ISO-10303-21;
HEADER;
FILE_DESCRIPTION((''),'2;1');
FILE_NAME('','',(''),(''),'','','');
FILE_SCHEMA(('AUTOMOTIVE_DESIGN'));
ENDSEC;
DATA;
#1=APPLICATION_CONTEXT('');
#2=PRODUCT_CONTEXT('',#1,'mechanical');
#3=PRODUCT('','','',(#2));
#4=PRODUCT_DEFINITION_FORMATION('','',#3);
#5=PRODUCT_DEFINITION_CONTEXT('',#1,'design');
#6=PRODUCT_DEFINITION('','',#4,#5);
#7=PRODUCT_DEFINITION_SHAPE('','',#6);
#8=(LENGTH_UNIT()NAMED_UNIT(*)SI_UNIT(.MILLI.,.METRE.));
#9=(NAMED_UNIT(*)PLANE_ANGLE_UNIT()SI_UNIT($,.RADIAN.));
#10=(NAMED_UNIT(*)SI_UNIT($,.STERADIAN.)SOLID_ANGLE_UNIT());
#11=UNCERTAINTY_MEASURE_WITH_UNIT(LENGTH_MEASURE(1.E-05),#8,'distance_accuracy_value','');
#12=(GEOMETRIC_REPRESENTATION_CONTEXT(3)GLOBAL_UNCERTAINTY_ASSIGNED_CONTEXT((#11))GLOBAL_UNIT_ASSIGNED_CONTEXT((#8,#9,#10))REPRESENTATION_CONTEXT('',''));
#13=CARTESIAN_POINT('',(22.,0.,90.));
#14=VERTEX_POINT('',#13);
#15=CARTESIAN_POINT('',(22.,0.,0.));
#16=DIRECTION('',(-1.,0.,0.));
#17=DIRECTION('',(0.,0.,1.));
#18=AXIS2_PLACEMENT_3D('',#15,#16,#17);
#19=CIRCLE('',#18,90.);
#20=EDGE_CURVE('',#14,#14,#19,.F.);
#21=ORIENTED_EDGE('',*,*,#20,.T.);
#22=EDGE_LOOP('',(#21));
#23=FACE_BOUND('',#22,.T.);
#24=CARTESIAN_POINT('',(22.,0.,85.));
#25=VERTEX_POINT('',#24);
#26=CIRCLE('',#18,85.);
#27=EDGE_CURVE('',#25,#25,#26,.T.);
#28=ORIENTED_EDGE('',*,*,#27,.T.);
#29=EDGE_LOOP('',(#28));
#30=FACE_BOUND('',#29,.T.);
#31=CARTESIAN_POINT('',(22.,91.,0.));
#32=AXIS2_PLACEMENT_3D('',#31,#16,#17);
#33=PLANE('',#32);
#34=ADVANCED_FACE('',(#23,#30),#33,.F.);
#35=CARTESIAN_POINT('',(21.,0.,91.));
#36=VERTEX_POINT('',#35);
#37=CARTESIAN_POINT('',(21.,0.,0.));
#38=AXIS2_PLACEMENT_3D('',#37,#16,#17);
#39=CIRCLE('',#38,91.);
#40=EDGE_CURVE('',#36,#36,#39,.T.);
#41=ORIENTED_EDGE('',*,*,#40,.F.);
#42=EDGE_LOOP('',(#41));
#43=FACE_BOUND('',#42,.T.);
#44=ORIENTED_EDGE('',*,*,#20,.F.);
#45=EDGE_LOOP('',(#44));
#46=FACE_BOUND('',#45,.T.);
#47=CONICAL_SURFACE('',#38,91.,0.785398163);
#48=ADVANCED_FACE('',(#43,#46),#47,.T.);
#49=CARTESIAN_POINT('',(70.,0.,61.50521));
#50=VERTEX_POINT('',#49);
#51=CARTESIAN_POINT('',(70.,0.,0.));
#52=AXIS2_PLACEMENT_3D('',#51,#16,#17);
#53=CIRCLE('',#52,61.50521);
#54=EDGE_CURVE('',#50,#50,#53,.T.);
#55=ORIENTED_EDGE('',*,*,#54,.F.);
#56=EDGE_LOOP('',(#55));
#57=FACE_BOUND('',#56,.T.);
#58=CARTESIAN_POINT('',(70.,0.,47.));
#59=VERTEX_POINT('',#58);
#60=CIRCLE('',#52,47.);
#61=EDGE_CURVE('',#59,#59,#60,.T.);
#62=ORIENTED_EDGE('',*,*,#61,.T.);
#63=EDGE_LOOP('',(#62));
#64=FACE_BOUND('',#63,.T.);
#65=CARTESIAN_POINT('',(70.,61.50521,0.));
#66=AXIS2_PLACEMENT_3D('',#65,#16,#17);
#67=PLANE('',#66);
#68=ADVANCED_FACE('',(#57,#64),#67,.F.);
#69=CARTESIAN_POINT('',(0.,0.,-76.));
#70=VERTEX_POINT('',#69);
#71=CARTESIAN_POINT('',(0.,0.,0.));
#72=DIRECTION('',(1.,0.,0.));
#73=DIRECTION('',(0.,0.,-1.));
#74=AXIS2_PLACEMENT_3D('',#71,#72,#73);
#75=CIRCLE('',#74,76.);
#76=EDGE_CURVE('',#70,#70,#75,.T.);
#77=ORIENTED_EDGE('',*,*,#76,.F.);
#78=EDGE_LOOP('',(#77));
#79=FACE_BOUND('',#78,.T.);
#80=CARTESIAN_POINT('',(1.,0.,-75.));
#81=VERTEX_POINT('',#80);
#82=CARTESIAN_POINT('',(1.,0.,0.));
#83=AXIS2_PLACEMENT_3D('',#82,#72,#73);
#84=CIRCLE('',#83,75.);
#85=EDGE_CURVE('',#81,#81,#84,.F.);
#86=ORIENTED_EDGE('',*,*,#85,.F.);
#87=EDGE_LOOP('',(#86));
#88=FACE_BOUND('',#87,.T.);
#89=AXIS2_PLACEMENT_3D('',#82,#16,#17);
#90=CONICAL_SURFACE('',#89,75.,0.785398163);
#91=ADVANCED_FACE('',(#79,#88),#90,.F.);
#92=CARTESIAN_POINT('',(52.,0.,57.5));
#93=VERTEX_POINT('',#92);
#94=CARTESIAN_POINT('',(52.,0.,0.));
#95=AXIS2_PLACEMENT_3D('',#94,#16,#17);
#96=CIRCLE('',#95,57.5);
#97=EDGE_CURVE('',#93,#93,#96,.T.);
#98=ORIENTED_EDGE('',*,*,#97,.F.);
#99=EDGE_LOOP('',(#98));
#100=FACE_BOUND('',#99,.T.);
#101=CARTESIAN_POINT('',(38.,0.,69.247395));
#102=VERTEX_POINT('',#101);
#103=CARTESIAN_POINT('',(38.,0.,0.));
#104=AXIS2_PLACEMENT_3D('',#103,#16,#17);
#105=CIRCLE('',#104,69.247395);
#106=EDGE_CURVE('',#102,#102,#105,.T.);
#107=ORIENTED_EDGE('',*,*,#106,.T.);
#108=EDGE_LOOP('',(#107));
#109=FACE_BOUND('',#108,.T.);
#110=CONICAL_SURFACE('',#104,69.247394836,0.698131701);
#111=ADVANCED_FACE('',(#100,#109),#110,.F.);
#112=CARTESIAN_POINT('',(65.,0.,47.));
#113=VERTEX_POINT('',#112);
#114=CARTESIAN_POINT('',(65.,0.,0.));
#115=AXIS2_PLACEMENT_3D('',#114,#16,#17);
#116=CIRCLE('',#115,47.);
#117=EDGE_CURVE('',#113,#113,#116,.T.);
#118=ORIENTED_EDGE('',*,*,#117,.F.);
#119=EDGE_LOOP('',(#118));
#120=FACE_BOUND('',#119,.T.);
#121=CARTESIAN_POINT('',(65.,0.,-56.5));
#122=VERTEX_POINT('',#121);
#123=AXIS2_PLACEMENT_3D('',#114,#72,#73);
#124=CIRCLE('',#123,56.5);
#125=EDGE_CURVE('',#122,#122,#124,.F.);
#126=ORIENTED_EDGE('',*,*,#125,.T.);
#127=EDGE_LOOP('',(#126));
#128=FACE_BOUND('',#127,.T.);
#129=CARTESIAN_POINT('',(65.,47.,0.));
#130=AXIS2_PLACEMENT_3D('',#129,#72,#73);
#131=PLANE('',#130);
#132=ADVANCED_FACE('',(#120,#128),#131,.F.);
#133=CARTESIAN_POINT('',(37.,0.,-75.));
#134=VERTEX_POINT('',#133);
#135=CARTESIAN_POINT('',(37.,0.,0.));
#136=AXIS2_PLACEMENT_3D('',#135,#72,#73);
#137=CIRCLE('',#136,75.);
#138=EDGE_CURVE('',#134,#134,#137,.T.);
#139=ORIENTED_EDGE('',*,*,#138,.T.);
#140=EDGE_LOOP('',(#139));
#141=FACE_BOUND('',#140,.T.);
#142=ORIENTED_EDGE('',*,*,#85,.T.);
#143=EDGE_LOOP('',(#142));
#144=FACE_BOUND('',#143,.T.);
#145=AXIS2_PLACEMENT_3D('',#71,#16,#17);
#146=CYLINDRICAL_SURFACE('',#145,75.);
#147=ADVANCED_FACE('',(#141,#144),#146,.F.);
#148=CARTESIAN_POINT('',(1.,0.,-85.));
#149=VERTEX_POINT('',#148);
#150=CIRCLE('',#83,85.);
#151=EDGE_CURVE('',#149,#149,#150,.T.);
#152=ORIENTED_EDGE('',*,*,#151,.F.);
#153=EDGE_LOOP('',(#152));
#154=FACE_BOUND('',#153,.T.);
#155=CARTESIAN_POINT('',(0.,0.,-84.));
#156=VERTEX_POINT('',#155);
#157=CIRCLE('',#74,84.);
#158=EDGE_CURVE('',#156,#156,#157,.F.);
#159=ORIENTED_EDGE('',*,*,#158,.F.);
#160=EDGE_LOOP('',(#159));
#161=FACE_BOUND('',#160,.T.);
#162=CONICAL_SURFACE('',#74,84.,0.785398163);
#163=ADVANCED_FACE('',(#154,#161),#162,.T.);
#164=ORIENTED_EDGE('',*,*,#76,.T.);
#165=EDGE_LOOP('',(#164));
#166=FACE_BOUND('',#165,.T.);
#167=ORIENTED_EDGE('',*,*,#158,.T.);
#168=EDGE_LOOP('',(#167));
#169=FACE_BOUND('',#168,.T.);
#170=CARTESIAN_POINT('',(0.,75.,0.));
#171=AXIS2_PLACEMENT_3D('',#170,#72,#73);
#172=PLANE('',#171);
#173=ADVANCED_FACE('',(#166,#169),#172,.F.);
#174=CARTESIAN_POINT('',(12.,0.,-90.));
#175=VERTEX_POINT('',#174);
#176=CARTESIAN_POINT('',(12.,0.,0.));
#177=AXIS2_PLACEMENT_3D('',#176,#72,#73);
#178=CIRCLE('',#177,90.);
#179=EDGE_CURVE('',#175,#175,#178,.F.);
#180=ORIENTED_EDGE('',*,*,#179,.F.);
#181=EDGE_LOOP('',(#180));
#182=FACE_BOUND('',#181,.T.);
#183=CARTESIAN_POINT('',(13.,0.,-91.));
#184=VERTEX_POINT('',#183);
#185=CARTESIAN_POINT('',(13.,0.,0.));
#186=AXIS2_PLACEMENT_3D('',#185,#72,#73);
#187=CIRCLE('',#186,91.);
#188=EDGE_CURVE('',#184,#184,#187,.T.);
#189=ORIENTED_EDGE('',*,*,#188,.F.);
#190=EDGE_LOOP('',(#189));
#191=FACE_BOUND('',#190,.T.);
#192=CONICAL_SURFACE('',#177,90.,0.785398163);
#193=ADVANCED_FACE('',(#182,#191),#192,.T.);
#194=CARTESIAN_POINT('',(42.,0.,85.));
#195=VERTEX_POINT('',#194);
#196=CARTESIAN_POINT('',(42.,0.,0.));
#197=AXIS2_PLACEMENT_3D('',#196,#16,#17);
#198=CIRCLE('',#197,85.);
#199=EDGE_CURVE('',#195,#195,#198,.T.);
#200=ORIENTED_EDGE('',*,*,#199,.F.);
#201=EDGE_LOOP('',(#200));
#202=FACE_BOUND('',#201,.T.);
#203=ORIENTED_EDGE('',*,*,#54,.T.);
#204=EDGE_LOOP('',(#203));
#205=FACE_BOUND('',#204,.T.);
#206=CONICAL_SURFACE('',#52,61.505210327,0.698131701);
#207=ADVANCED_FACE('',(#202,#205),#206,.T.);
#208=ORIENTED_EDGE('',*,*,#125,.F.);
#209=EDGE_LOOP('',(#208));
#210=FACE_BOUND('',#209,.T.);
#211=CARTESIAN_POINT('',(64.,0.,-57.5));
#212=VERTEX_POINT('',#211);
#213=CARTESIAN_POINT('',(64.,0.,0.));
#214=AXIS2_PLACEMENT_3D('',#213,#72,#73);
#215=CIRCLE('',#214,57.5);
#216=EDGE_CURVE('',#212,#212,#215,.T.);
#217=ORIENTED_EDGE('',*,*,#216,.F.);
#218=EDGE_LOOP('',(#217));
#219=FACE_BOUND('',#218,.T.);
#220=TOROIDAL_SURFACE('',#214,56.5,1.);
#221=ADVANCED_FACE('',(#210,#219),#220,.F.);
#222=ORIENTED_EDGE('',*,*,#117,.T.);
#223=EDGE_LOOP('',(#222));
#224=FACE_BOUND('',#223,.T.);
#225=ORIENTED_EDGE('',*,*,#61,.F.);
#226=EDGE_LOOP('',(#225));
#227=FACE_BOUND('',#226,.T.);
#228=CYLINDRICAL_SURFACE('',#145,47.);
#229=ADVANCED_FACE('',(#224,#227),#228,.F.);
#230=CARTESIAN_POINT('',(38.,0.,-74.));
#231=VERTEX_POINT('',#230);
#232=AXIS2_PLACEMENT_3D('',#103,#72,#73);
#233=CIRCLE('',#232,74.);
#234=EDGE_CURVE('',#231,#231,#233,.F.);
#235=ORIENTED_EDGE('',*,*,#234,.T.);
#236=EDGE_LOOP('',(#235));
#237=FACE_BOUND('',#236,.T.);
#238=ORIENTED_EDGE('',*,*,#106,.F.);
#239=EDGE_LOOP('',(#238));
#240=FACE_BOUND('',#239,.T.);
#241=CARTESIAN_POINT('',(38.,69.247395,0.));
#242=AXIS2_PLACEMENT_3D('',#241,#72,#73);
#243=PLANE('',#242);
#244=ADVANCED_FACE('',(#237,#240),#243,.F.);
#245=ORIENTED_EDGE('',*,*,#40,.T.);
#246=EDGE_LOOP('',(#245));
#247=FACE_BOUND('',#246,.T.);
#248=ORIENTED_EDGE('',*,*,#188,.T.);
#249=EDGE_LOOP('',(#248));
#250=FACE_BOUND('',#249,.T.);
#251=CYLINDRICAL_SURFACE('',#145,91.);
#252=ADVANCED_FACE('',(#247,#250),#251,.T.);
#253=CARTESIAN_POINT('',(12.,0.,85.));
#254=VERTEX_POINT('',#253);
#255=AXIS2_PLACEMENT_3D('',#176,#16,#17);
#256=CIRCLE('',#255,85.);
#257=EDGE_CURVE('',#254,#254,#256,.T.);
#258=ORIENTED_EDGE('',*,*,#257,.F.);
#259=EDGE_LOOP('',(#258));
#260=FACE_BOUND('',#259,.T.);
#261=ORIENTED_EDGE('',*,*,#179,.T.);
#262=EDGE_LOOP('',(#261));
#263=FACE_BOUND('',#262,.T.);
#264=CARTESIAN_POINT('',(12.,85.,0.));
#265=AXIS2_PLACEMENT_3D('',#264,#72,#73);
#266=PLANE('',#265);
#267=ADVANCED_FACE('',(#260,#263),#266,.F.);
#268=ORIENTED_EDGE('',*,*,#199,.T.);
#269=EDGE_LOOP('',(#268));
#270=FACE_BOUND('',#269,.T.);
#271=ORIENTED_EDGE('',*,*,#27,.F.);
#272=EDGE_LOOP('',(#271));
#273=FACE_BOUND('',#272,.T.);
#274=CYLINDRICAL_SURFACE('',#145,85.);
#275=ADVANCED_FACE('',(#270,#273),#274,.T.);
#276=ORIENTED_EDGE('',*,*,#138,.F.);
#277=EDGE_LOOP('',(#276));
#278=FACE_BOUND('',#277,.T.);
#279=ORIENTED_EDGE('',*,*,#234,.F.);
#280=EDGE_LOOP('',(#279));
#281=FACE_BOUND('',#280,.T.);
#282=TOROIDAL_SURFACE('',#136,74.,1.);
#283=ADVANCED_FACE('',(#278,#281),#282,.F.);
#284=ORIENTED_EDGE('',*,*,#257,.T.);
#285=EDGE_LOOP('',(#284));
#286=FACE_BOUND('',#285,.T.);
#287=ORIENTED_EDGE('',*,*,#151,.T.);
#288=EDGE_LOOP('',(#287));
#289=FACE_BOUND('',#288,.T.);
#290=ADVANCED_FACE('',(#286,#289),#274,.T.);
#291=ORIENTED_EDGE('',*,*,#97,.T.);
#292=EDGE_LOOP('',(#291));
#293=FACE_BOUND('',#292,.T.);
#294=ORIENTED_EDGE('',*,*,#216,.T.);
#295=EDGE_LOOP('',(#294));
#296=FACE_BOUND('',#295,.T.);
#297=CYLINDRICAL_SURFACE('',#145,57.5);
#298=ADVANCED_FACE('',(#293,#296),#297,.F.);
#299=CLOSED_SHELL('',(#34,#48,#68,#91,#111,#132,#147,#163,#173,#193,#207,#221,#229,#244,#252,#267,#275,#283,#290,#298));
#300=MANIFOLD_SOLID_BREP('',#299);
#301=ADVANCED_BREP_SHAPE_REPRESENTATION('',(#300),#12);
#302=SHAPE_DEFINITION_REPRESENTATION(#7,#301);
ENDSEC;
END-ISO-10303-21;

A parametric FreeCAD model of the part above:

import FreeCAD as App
import Part
import Sketcher

V = App.Vector
Q = App.Units.Quantity


def edges_at(feature, points):
    """Names of the edges that pass closest to the given points."""
    edges = feature.Shape.Edges
    near = lambda p: min(range(len(edges)), key=lambda i: edges[i].distToShape(Part.Vertex(*p))[0])
    return sorted({f"Edge{near(p) + 1}" for p in points})

doc = App.newDocument("Part")
body = doc.addObject("PartDesign::Body", "Body")

# Sketch on XY plane
sketch1 = body.newObject("Sketcher::SketchObject", "Sketch")
sketch1.AttachmentSupport = (doc.getObject("XY_Plane"), [""])
sketch1.MapMode = "FlatFace"
sketch1.addGeometry([
    Part.LineSegment(V(65, 47, 0), V(70, 47, 0)),  # 0
    Part.LineSegment(V(70, 47, 0), V(70, 62, 0)),  # 1
    Part.LineSegment(V(70, 62, 0), V(42, 85, 0)),  # 2
    Part.LineSegment(V(42, 85, 0), V(22, 85, 0)),  # 3
    Part.LineSegment(V(22, 85, 0), V(22, 91, 0)),  # 4
    Part.LineSegment(V(22, 91, 0), V(12, 91, 0)),  # 5
    Part.LineSegment(V(12, 91, 0), V(12, 85, 0)),  # 6
    Part.LineSegment(V(12, 85, 0), V(0, 85, 0)),  # 7
    Part.LineSegment(V(0, 85, 0), V(0, 75, 0)),  # 8
    Part.LineSegment(V(0, 75, 0), V(38, 75, 0)),  # 9
    Part.LineSegment(V(38, 75, 0), V(38, 69, 0)),  # 10
    Part.LineSegment(V(38, 69, 0), V(52, 58, 0)),  # 11
    Part.LineSegment(V(52, 58, 0), V(65, 58, 0)),  # 12
    Part.LineSegment(V(65, 58, 0), V(65, 47, 0)),  # 13
], False)
sketch1.addConstraint([
    Sketcher.Constraint("Coincident", 0, 2, 1, 1),
    Sketcher.Constraint("Coincident", 1, 2, 2, 1),
    Sketcher.Constraint("Coincident", 2, 2, 3, 1),
    Sketcher.Constraint("Coincident", 3, 2, 4, 1),
    Sketcher.Constraint("Coincident", 4, 2, 5, 1),
    Sketcher.Constraint("Coincident", 5, 2, 6, 1),
    Sketcher.Constraint("Coincident", 6, 2, 7, 1),
    Sketcher.Constraint("Coincident", 7, 2, 8, 1),
    Sketcher.Constraint("Coincident", 8, 2, 9, 1),
    Sketcher.Constraint("Coincident", 9, 2, 10, 1),
    Sketcher.Constraint("Coincident", 10, 2, 11, 1),
    Sketcher.Constraint("Coincident", 11, 2, 12, 1),
    Sketcher.Constraint("Coincident", 12, 2, 13, 1),
    Sketcher.Constraint("Coincident", 13, 2, 0, 1),
    Sketcher.Constraint("Horizontal", 0),
    Sketcher.Constraint("Vertical", 1),
    Sketcher.Constraint("Horizontal", 3),
    Sketcher.Constraint("Vertical", 4),
    Sketcher.Constraint("Horizontal", 5),
    Sketcher.Constraint("Vertical", 6),
    Sketcher.Constraint("Horizontal", 7),
    Sketcher.Constraint("Vertical", 8),
    Sketcher.Constraint("Horizontal", 9),
    Sketcher.Constraint("Vertical", 10),
    Sketcher.Constraint("Horizontal", 12),
    Sketcher.Constraint("Vertical", 13),
    Sketcher.Constraint("PointOnObject", 7, 2, -2),
    Sketcher.Constraint("Parallel", 2, 11),
    Sketcher.Constraint("Horizontal", 3, 2, 6, 2),
    Sketcher.Constraint("Equal", 5, 8),
    Sketcher.Constraint("DistanceX", 0, 1, 0, 2, Q("5 mm")),
    Sketcher.Constraint("DistanceX", 3, 2, 3, 1, Q("20 mm")),
    Sketcher.Constraint("DistanceX", 5, 2, 5, 1, Q("10 mm")),
    Sketcher.Constraint("DistanceX", 7, 2, 7, 1, Q("12 mm")),
    Sketcher.Constraint("DistanceX", 9, 1, 9, 2, Q("38 mm")),
    Sketcher.Constraint("DistanceX", 12, 1, 12, 2, Q("13 mm")),
    Sketcher.Constraint("DistanceY", 4, 1, 4, 2, Q("6 mm")),
    Sketcher.Constraint("Angle", 2, Q("140 deg")),
    Sketcher.Constraint("DistanceY", 13, 2, 13, 1, Q("10.5 mm")),
    Sketcher.Constraint("DistanceX", -1, 1, 0, 2, Q("70 mm")),
    Sketcher.Constraint("DistanceY", -1, 1, 0, 2, Q("47 mm")),
    Sketcher.Constraint("DistanceY", -1, 1, 2, 2, Q("85 mm")),
])
revolution = body.newObject("PartDesign::Revolution", "Revolution")
revolution.Profile = sketch1
revolution.ReferenceAxis = (sketch1, ["H_Axis"])
revolution.Angle = 360
doc.recompute()

fillet = body.newObject("PartDesign::Fillet", "Fillet")
fillet.Base = (revolution, edges_at(revolution, [(65, 0, -57.5)]))
fillet.Radius = 1
doc.recompute()

fillet2 = body.newObject("PartDesign::Fillet", "Fillet001")
fillet2.Base = (fillet, edges_at(fillet, [(38, 0, -75)]))
fillet2.Radius = 1
doc.recompute()

chamfer = body.newObject("PartDesign::Chamfer", "Chamfer")
chamfer.Base = (fillet2, edges_at(fillet2, [
    (22, 0, -91),
    (12, 0, -91),
    (0, 0, -85),
    (0, 0, -75),
]))
chamfer.Size = 1

doc.recompute()
